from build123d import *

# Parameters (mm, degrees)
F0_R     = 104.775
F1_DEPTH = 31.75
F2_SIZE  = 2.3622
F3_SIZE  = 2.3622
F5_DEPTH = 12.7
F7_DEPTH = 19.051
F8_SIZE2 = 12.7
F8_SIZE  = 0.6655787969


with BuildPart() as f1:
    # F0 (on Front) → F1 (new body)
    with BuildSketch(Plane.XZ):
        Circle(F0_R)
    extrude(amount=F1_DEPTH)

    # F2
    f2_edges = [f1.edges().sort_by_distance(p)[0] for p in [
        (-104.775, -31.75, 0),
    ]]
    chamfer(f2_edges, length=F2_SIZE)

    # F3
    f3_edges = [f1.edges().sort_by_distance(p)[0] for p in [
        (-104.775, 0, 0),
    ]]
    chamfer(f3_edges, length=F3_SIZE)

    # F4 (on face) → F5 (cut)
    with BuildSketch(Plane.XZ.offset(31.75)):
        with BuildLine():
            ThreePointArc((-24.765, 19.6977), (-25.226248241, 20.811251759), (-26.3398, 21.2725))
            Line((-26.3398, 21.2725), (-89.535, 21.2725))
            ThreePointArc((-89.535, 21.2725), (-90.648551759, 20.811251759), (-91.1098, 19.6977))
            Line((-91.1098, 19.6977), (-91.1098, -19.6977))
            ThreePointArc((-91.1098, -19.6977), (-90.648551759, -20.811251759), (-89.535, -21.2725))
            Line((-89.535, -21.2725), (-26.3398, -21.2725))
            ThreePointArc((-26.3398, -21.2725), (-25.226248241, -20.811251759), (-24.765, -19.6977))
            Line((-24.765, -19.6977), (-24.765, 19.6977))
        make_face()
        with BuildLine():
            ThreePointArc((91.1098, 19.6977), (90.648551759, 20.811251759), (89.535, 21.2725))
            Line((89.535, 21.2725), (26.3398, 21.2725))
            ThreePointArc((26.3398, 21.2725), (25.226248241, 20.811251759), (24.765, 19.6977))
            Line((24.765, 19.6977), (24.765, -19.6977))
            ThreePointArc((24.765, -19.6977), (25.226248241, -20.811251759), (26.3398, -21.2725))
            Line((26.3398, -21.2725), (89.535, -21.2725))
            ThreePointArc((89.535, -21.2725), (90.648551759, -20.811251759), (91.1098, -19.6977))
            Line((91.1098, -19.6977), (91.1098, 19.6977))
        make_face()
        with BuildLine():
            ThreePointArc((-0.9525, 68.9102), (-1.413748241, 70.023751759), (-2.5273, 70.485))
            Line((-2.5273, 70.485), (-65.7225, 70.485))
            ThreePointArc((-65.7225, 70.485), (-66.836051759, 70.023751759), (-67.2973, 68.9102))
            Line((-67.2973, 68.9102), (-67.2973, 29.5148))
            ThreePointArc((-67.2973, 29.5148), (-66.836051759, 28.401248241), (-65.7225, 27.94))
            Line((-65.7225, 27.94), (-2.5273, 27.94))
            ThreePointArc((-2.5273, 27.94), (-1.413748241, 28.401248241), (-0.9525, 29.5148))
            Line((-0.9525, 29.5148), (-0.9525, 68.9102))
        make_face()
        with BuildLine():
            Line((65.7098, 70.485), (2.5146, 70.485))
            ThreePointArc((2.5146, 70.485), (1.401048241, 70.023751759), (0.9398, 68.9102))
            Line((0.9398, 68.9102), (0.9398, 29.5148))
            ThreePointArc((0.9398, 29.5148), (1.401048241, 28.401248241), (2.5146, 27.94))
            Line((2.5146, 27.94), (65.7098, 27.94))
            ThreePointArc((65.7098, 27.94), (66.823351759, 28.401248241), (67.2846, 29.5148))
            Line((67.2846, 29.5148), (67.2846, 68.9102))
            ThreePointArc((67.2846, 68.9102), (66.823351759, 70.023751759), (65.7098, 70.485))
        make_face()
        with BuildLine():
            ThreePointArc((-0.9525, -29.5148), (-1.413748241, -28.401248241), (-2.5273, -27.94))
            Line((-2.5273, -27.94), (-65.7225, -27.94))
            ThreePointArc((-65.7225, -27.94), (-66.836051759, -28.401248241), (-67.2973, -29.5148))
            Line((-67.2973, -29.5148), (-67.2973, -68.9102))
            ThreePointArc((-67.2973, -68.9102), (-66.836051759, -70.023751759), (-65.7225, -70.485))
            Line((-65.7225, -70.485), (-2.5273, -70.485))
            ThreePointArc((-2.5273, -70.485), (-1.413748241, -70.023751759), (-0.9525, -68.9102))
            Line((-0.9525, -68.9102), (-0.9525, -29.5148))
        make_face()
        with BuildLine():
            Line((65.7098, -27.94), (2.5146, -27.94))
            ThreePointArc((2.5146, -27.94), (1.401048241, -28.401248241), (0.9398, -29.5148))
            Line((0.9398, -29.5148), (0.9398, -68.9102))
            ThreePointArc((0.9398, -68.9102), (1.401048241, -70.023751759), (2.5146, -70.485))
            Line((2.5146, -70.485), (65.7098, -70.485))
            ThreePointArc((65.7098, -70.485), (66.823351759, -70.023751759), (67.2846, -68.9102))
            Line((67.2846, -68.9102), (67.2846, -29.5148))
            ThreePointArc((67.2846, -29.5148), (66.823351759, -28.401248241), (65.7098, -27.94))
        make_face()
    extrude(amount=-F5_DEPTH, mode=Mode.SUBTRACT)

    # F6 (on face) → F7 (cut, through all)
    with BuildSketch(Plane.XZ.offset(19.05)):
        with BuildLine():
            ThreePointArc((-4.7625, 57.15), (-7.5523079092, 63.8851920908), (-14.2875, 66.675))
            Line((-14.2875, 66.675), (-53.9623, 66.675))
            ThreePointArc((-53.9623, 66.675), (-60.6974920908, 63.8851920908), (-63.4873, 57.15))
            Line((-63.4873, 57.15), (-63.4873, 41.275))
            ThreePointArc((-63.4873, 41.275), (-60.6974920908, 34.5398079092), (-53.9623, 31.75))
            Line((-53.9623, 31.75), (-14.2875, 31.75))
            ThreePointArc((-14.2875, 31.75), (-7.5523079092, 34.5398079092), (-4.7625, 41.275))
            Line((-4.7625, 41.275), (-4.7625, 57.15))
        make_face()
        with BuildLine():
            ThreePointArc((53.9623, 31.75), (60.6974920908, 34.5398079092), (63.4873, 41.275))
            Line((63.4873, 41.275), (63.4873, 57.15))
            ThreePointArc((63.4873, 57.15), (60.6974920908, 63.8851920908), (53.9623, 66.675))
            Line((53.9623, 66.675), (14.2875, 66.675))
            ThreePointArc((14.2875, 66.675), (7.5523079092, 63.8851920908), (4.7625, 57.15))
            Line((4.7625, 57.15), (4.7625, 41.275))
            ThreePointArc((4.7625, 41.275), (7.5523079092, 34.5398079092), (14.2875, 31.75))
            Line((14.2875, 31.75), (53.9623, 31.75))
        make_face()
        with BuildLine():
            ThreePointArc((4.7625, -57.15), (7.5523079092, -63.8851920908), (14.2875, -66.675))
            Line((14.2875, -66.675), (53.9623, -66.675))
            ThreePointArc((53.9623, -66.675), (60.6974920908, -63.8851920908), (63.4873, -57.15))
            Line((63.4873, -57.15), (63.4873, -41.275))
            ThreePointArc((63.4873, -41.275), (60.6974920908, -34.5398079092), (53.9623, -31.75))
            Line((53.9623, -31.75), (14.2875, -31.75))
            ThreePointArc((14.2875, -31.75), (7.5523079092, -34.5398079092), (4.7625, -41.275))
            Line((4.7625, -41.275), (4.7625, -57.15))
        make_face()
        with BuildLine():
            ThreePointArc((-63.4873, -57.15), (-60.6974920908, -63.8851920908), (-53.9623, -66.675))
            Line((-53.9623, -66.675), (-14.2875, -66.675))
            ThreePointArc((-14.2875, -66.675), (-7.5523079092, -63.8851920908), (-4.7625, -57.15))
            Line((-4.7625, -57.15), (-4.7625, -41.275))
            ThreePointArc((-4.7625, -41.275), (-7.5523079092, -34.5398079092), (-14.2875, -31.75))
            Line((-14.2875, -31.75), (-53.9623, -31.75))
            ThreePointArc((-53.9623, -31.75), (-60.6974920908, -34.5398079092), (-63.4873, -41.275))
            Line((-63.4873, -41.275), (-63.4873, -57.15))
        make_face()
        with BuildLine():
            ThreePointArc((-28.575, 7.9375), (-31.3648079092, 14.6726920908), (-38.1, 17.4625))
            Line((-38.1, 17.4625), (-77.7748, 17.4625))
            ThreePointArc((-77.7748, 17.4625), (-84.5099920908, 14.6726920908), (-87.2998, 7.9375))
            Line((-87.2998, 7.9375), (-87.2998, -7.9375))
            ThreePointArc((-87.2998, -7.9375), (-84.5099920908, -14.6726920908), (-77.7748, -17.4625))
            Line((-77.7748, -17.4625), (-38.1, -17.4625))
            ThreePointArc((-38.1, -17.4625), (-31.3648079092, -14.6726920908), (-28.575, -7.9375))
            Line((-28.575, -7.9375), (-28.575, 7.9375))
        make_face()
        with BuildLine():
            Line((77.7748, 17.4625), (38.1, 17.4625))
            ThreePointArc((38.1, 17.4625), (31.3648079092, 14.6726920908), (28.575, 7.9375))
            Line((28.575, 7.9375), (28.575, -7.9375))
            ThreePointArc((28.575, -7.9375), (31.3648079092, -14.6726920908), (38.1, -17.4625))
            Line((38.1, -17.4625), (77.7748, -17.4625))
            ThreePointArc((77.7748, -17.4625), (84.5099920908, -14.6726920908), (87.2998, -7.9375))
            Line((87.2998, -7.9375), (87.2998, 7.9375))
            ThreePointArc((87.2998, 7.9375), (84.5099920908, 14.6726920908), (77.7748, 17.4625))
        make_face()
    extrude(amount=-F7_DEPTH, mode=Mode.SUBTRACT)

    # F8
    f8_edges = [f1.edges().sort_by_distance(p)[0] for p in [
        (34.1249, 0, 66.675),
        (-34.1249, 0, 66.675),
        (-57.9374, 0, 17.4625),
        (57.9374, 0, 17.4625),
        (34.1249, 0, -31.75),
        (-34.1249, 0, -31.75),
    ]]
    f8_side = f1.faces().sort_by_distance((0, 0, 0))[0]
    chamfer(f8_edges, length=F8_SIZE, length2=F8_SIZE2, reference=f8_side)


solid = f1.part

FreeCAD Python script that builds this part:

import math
import FreeCAD as App
import Part
import Sketcher
from FreeCAD import Vector
Q = App.Units.Quantity


def edges_at(feature, points):
    """Names of the edges that pass closest to the given points."""
    edges = feature.Shape.Edges
    near = lambda p: min(range(len(edges)), key=lambda i: edges[i].distToShape(Part.Vertex(*p))[0])
    return sorted({f"Edge{near(p) + 1}" for p in points})

doc = App.newDocument("Part")
body = doc.addObject("PartDesign::Body", "Body")

sketch1 = body.newObject("Sketcher::SketchObject", "Sketch")
sketch1.AttachmentSupport = (doc.getObject("XZ_Plane"), [""])
sketch1.MapMode = "FlatFace"
sketch1.addGeometry(Part.Circle(Vector(0, 0, 0), Vector(0, 0, 1), 105), False)
sketch1.addConstraint([
    Sketcher.Constraint("Coincident", 0, 3, -1, 1),
    Sketcher.Constraint("Diameter", 0, Q("8.25 in")),
])
pad1 = body.newObject("PartDesign::Pad", "Pad")
pad1.Profile = sketch1
pad1.Length = Q("1.25 in")
doc.recompute()

chamfer = body.newObject("PartDesign::Chamfer", "Chamfer")
chamfer.Base = (pad1, edges_at(pad1, [(-104.775, -31.75, 0)]))
chamfer.Size = Q("0.093 in")
doc.recompute()

chamfer2 = body.newObject("PartDesign::Chamfer", "Chamfer001")
chamfer2.Base = (chamfer, edges_at(chamfer, [(-104.775, 0, 0)]))
chamfer2.Size = Q("0.093 in")

sketch2 = body.newObject("Sketcher::SketchObject", "Sketch001")
sketch2.AttachmentSupport = (doc.getObject("XZ_Plane"), [""])
sketch2.MapMode = "FlatFace"
sketch2.AttachmentOffset = App.Placement(Vector(0, 0, 1.25 * 25.4), App.Rotation())
sketch2.addGeometry([
    Part.ArcOfCircle(Part.Circle(Vector(-26.3, 19.7, 0), Vector(0, 0, 1), 1.6), math.radians(0), math.radians(90)),
    Part.LineSegment(Vector(-26.3, 21.3, 0), Vector(-89.5, 21.3, 0)),
    Part.ArcOfCircle(Part.Circle(Vector(-89.5, 19.7, 0), Vector(0, 0, 1), 1.6), math.radians(90), math.radians(180)),
    Part.LineSegment(Vector(-91.1, 19.7, 0), Vector(-91.1, -19.7, 0)),
    Part.ArcOfCircle(Part.Circle(Vector(-89.5, -19.7, 0), Vector(0, 0, 1), 1.6), math.radians(180), math.radians(270)),
    Part.LineSegment(Vector(-89.5, -21.3, 0), Vector(-26.3, -21.3, 0)),
    Part.ArcOfCircle(Part.Circle(Vector(-26.3, -19.7, 0), Vector(0, 0, 1), 1.6), math.radians(-90), math.radians(0)),
    Part.LineSegment(Vector(-24.8, -19.7, 0), Vector(-24.8, 19.7, 0)),
    Part.ArcOfCircle(Part.Circle(Vector(89.5, 19.7, 0), Vector(0, 0, 1), 1.6), math.radians(0), math.radians(90)),
    Part.LineSegment(Vector(89.5, 21.3, 0), Vector(26.3, 21.3, 0)),
    Part.ArcOfCircle(Part.Circle(Vector(26.3, 19.7, 0), Vector(0, 0, 1), 1.6), math.radians(90), math.radians(180)),
    Part.LineSegment(Vector(24.8, 19.7, 0), Vector(24.8, -19.7, 0)),
    Part.ArcOfCircle(Part.Circle(Vector(26.3, -19.7, 0), Vector(0, 0, 1), 1.6), math.radians(180), math.radians(270)),
    Part.LineSegment(Vector(26.3, -21.3, 0), Vector(89.5, -21.3, 0)),
    Part.ArcOfCircle(Part.Circle(Vector(89.5, -19.7, 0), Vector(0, 0, 1), 1.6), math.radians(-90), math.radians(0)),
    Part.LineSegment(Vector(91.1, -19.7, 0), Vector(91.1, 19.7, 0)),
    Part.ArcOfCircle(Part.Circle(Vector(-2.5, 68.9, 0), Vector(0, 0, 1), 1.6), math.radians(0), math.radians(90)),
    Part.LineSegment(Vector(-2.5, 70.5, 0), Vector(-65.7, 70.5, 0)),
    Part.ArcOfCircle(Part.Circle(Vector(-65.7, 68.9, 0), Vector(0, 0, 1), 1.6), math.radians(90), math.radians(180)),
    Part.LineSegment(Vector(-67.3, 68.9, 0), Vector(-67.3, 29.5, 0)),
    Part.ArcOfCircle(Part.Circle(Vector(-65.7, 29.5, 0), Vector(0, 0, 1), 1.6), math.radians(180), math.radians(270)),
    Part.LineSegment(Vector(-65.7, 27.9, 0), Vector(-2.5, 27.9, 0)),
    Part.ArcOfCircle(Part.Circle(Vector(-2.5, 29.5, 0), Vector(0, 0, 1), 1.6), math.radians(-90), math.radians(0)),
    Part.LineSegment(Vector(-1, 29.5, 0), Vector(-1, 68.9, 0)),
    Part.LineSegment(Vector(65.7, 70.5, 0), Vector(2.5, 70.5, 0)),
    Part.ArcOfCircle(Part.Circle(Vector(2.5, 68.9, 0), Vector(0, 0, 1), 1.6), math.radians(90), math.radians(180)),
    Part.LineSegment(Vector(0.9, 68.9, 0), Vector(0.9, 29.5, 0)),
    Part.ArcOfCircle(Part.Circle(Vector(2.5, 29.5, 0), Vector(0, 0, 1), 1.6), math.radians(180), math.radians(270)),
    Part.LineSegment(Vector(2.5, 27.9, 0), Vector(65.7, 27.9, 0)),
    Part.ArcOfCircle(Part.Circle(Vector(65.7, 29.5, 0), Vector(0, 0, 1), 1.6), math.radians(-90), math.radians(0)),
    Part.LineSegment(Vector(67.3, 29.5, 0), Vector(67.3, 68.9, 0)),
    Part.ArcOfCircle(Part.Circle(Vector(65.7, 68.9, 0), Vector(0, 0, 1), 1.6), math.radians(0), math.radians(90)),
    Part.ArcOfCircle(Part.Circle(Vector(-2.5, -29.5, 0), Vector(0, 0, 1), 1.6), math.radians(0), math.radians(90)),
    Part.LineSegment(Vector(-2.5, -27.9, 0), Vector(-65.7, -27.9, 0)),
    Part.ArcOfCircle(Part.Circle(Vector(-65.7, -29.5, 0), Vector(0, 0, 1), 1.6), math.radians(90), math.radians(180)),
    Part.LineSegment(Vector(-67.3, -29.5, 0), Vector(-67.3, -68.9, 0)),
    Part.ArcOfCircle(Part.Circle(Vector(-65.7, -68.9, 0), Vector(0, 0, 1), 1.6), math.radians(180), math.radians(270)),
    Part.LineSegment(Vector(-65.7, -70.5, 0), Vector(-2.5, -70.5, 0)),
    Part.ArcOfCircle(Part.Circle(Vector(-2.5, -68.9, 0), Vector(0, 0, 1), 1.6), math.radians(-90), math.radians(0)),
    Part.LineSegment(Vector(-1, -68.9, 0), Vector(-1, -29.5, 0)),
    Part.LineSegment(Vector(65.7, -27.9, 0), Vector(2.5, -27.9, 0)),
    Part.ArcOfCircle(Part.Circle(Vector(2.5, -29.5, 0), Vector(0, 0, 1), 1.6), math.radians(90), math.radians(180)),
    Part.LineSegment(Vector(0.9, -29.5, 0), Vector(0.9, -68.9, 0)),
    Part.ArcOfCircle(Part.Circle(Vector(2.5, -68.9, 0), Vector(0, 0, 1), 1.6), math.radians(180), math.radians(270)),
    Part.LineSegment(Vector(2.5, -70.5, 0), Vector(65.7, -70.5, 0)),
    Part.ArcOfCircle(Part.Circle(Vector(65.7, -68.9, 0), Vector(0, 0, 1), 1.6), math.radians(-90), math.radians(0)),
    Part.LineSegment(Vector(67.3, -68.9, 0), Vector(67.3, -29.5, 0)),
    Part.ArcOfCircle(Part.Circle(Vector(65.7, -29.5, 0), Vector(0, 0, 1), 1.6), math.radians(0), math.radians(90)),
], False)
sketch2.addConstraint([
    Sketcher.Constraint("Tangent", 0, 2, 1, 1),
    Sketcher.Constraint("Tangent", 1, 2, 2, 1),
    Sketcher.Constraint("Tangent", 2, 2, 3, 1),
    Sketcher.Constraint("Tangent", 3, 2, 4, 1),
    Sketcher.Constraint("Tangent", 4, 2, 5, 1),
    Sketcher.Constraint("Tangent", 5, 2, 6, 1),
    Sketcher.Constraint("Tangent", 6, 2, 7, 1),
    Sketcher.Constraint("Tangent", 7, 2, 0, 1),
    Sketcher.Constraint("Tangent", 8, 2, 9, 1),
    Sketcher.Constraint("Tangent", 9, 2, 10, 1),
    Sketcher.Constraint("Tangent", 10, 2, 11, 1),
    Sketcher.Constraint("Tangent", 11, 2, 12, 1),
    Sketcher.Constraint("Tangent", 12, 2, 13, 1),
    Sketcher.Constraint("Tangent", 13, 2, 14, 1),
    Sketcher.Constraint("Tangent", 14, 2, 15, 1),
    Sketcher.Constraint("Tangent", 15, 2, 8, 1),
    Sketcher.Constraint("Tangent", 16, 2, 17, 1),
    Sketcher.Constraint("Tangent", 17, 2, 18, 1),
    Sketcher.Constraint("Tangent", 18, 2, 19, 1),
    Sketcher.Constraint("Tangent", 19, 2, 20, 1),
    Sketcher.Constraint("Tangent", 20, 2, 21, 1),
    Sketcher.Constraint("Tangent", 21, 2, 22, 1),
    Sketcher.Constraint("Tangent", 22, 2, 23, 1),
    Sketcher.Constraint("Tangent", 23, 2, 16, 1),
    Sketcher.Constraint("Tangent", 24, 2, 25, 1),
    Sketcher.Constraint("Tangent", 25, 2, 26, 1),
    Sketcher.Constraint("Tangent", 26, 2, 27, 1),
    Sketcher.Constraint("Tangent", 27, 2, 28, 1),
    Sketcher.Constraint("Tangent", 28, 2, 29, 1),
    Sketcher.Constraint("Tangent", 29, 2, 30, 1),
    Sketcher.Constraint("Tangent", 30, 2, 31, 1),
    Sketcher.Constraint("Tangent", 31, 2, 24, 1),
    Sketcher.Constraint("Tangent", 32, 2, 33, 1),
    Sketcher.Constraint("Tangent", 33, 2, 34, 1),
    Sketcher.Constraint("Tangent", 34, 2, 35, 1),
    Sketcher.Constraint("Tangent", 35, 2, 36, 1),
    Sketcher.Constraint("Tangent", 36, 2, 37, 1),
    Sketcher.Constraint("Tangent", 37, 2, 38, 1),
    Sketcher.Constraint("Tangent", 38, 2, 39, 1),
    Sketcher.Constraint("Tangent", 39, 2, 32, 1),
    Sketcher.Constraint("Tangent", 40, 2, 41, 1),
    Sketcher.Constraint("Tangent", 41, 2, 42, 1),
    Sketcher.Constraint("Tangent", 42, 2, 43, 1),
    Sketcher.Constraint("Tangent", 43, 2, 44, 1),
    Sketcher.Constraint("Tangent", 44, 2, 45, 1),
    Sketcher.Constraint("Tangent", 45, 2, 46, 1),
    Sketcher.Constraint("Tangent", 46, 2, 47, 1),
    Sketcher.Constraint("Tangent", 47, 2, 40, 1),
    Sketcher.Constraint("Horizontal", 1),
    Sketcher.Constraint("Vertical", 3),
    Sketcher.Constraint("Horizontal", 5),
    Sketcher.Constraint("Vertical", 7),
    Sketcher.Constraint("Horizontal", 9),
    Sketcher.Constraint("Vertical", 11),
    Sketcher.Constraint("Horizontal", 13),
    Sketcher.Constraint("Vertical", 15),
    Sketcher.Constraint("Horizontal", 17),
    Sketcher.Constraint("Vertical", 19),
    Sketcher.Constraint("Horizontal", 21),
    Sketcher.Constraint("Vertical", 23),
    Sketcher.Constraint("Horizontal", 24),
    Sketcher.Constraint("Vertical", 26),
    Sketcher.Constraint("Horizontal", 28),
    Sketcher.Constraint("Vertical", 30),
    Sketcher.Constraint("Horizontal", 33),
    Sketcher.Constraint("Vertical", 35),
    Sketcher.Constraint("Horizontal", 37),
    Sketcher.Constraint("Vertical", 39),
    Sketcher.Constraint("Horizontal", 40),
    Sketcher.Constraint("Vertical", 42),
    Sketcher.Constraint("Horizontal", 44),
    Sketcher.Constraint("Vertical", 46),
    Sketcher.Constraint("Equal", 0, 2),
    Sketcher.Constraint("Equal", 2, 4),
    Sketcher.Constraint("Equal", 4, 6),
    Sketcher.Constraint("Equal", 6, 8),
    Sketcher.Constraint("Equal", 8, 10),
    Sketcher.Constraint("Equal", 10, 12),
    Sketcher.Constraint("Equal", 12, 14),
    Sketcher.Constraint("Equal", 14, 16),
    Sketcher.Constraint("Equal", 16, 18),
    Sketcher.Constraint("Equal", 18, 20),
    Sketcher.Constraint("Equal", 20, 22),
    Sketcher.Constraint("Equal", 22, 25),
    Sketcher.Constraint("Equal", 25, 27),
    Sketcher.Constraint("Equal", 27, 29),
    Sketcher.Constraint("Equal", 29, 31),
    Sketcher.Constraint("Equal", 31, 32),
    Sketcher.Constraint("Equal", 32, 34),
    Sketcher.Constraint("Equal", 34, 36),
    Sketcher.Constraint("Equal", 36, 38),
    Sketcher.Constraint("Equal", 38, 41),
    Sketcher.Constraint("Equal", 41, 43),
    Sketcher.Constraint("Equal", 43, 45),
    Sketcher.Constraint("Equal", 45, 47),
    Sketcher.Constraint("Symmetric", 4, 3, 8, 3, -1, 1),
    Sketcher.Constraint("Symmetric", 0, 3, 12, 3, -1, 1),
    Sketcher.Constraint("Symmetric", 22, 3, 32, 3, -1),
    Sketcher.Constraint("Symmetric", 18, 3, 36, 3, -1),
    Sketcher.Constraint("Symmetric", 27, 3, 41, 3, -1),
    Sketcher.Constraint("Symmetric", 31, 3, 45, 3, -1),
    Sketcher.Constraint("Horizontal", 2, 3, 8, 3),
    Sketcher.Constraint("Horizontal", 18, 3, 25, 3),
    Sketcher.Constraint("Horizontal", 22, 3, 27, 3),
    Sketcher.Constraint("Equal", 13, 17),
    Sketcher.Constraint("Equal", 21, 24),
    Sketcher.Constraint("Equal", 15, 19),
    Sketcher.Constraint("Radius", 0, Q("0.062 in")),
    Sketcher.Constraint("DistanceY", -1, 1, 20, 2, Q("1.1 in")),
    Sketcher.Constraint("DistanceX", 1, 2, 1, 1, Q("2.488 in")),
    Sketcher.Constraint("DistanceY", 3, 2, 3, 1, Q("1.551 in")),
    Sketcher.Constraint("DistanceX", 0, 3, -1, 1, Q("1.037 in")),
    Sketcher.Constraint("DistanceX", -1, 1, 25, 3, Q("0.099 in")),
    Sketcher.Constraint("DistanceX", 16, 3, -1, 1, Q("0.0995 in")),
])
pocket1 = body.newObject("PartDesign::Pocket", "Pocket")
pocket1.Profile = sketch2
pocket1.Length = Q("0.5 in")

sketch3 = body.newObject("Sketcher::SketchObject", "Sketch002")
sketch3.AttachmentSupport = (doc.getObject("XZ_Plane"), [""])
sketch3.MapMode = "FlatFace"
sketch3.AttachmentOffset = App.Placement(Vector(0, 0, 0.75 * 25.4), App.Rotation())
sketch3.addGeometry([
    Part.ArcOfCircle(Part.Circle(Vector(-14, 57, 0), Vector(0, 0, 1), 10), math.radians(0), math.radians(90)),
    Part.LineSegment(Vector(-14, 67, 0), Vector(-54, 67, 0)),
    Part.ArcOfCircle(Part.Circle(Vector(-54, 57, 0), Vector(0, 0, 1), 10), math.radians(90), math.radians(180)),
    Part.LineSegment(Vector(-63, 57, 0), Vector(-63, 41, 0)),
    Part.ArcOfCircle(Part.Circle(Vector(-54, 41, 0), Vector(0, 0, 1), 10), math.radians(180), math.radians(270)),
    Part.LineSegment(Vector(-54, 32, 0), Vector(-14, 32, 0)),
    Part.ArcOfCircle(Part.Circle(Vector(-14, 41, 0), Vector(0, 0, 1), 10), math.radians(-90), math.radians(0)),
    Part.LineSegment(Vector(-5, 41, 0), Vector(-5, 57, 0)),
    Part.ArcOfCircle(Part.Circle(Vector(54, 41, 0), Vector(0, 0, 1), 10), math.radians(-90), math.radians(0)),
    Part.LineSegment(Vector(63, 41, 0), Vector(63, 57, 0)),
    Part.ArcOfCircle(Part.Circle(Vector(54, 57, 0), Vector(0, 0, 1), 10), math.radians(0), math.radians(90)),
    Part.LineSegment(Vector(54, 67, 0), Vector(14, 67, 0)),
    Part.ArcOfCircle(Part.Circle(Vector(14, 57, 0), Vector(0, 0, 1), 10), math.radians(90), math.radians(180)),
    Part.LineSegment(Vector(5, 57, 0), Vector(5, 41, 0)),
    Part.ArcOfCircle(Part.Circle(Vector(14, 41, 0), Vector(0, 0, 1), 10), math.radians(180), math.radians(270)),
    Part.LineSegment(Vector(14, 32, 0), Vector(54, 32, 0)),
    Part.ArcOfCircle(Part.Circle(Vector(14, -57, 0), Vector(0, 0, 1), 10), math.radians(180), math.radians(270)),
    Part.LineSegment(Vector(14, -67, 0), Vector(54, -67, 0)),
    Part.ArcOfCircle(Part.Circle(Vector(54, -57, 0), Vector(0, 0, 1), 10), math.radians(-90), math.radians(0)),
    Part.LineSegment(Vector(63, -57, 0), Vector(63, -41, 0)),
    Part.ArcOfCircle(Part.Circle(Vector(54, -41, 0), Vector(0, 0, 1), 10), math.radians(0), math.radians(90)),
    Part.LineSegment(Vector(54, -32, 0), Vector(14, -32, 0)),
    Part.ArcOfCircle(Part.Circle(Vector(14, -41, 0), Vector(0, 0, 1), 10), math.radians(90), math.radians(180)),
    Part.LineSegment(Vector(5, -41, 0), Vector(5, -57, 0)),
    Part.ArcOfCircle(Part.Circle(Vector(-54, -57, 0), Vector(0, 0, 1), 10), math.radians(180), math.radians(270)),
    Part.LineSegment(Vector(-54, -67, 0), Vector(-14, -67, 0)),
    Part.ArcOfCircle(Part.Circle(Vector(-14, -57, 0), Vector(0, 0, 1), 10), math.radians(-90), math.radians(0)),
    Part.LineSegment(Vector(-5, -57, 0), Vector(-5, -41, 0)),
    Part.ArcOfCircle(Part.Circle(Vector(-14, -41, 0), Vector(0, 0, 1), 10), math.radians(0), math.radians(90)),
    Part.LineSegment(Vector(-14, -32, 0), Vector(-54, -32, 0)),
    Part.ArcOfCircle(Part.Circle(Vector(-54, -41, 0), Vector(0, 0, 1), 10), math.radians(90), math.radians(180)),
    Part.LineSegment(Vector(-63, -41, 0), Vector(-63, -57, 0)),
    Part.ArcOfCircle(Part.Circle(Vector(-38, 8, 0), Vector(0, 0, 1), 10), math.radians(0), math.radians(90)),
    Part.LineSegment(Vector(-38, 17, 0), Vector(-78, 17, 0)),
    Part.ArcOfCircle(Part.Circle(Vector(-78, 8, 0), Vector(0, 0, 1), 10), math.radians(90), math.radians(180)),
    Part.LineSegment(Vector(-87, 8, 0), Vector(-87, -8, 0)),
    Part.ArcOfCircle(Part.Circle(Vector(-78, -8, 0), Vector(0, 0, 1), 10), math.radians(180), math.radians(270)),
    Part.LineSegment(Vector(-78, -17, 0), Vector(-38, -17, 0)),
    Part.ArcOfCircle(Part.Circle(Vector(-38, -8, 0), Vector(0, 0, 1), 10), math.radians(-90), math.radians(0)),
    Part.LineSegment(Vector(-29, -8, 0), Vector(-29, 8, 0)),
    Part.LineSegment(Vector(78, 17, 0), Vector(38, 17, 0)),
    Part.ArcOfCircle(Part.Circle(Vector(38, 8, 0), Vector(0, 0, 1), 10), math.radians(90), math.radians(180)),
    Part.LineSegment(Vector(29, 8, 0), Vector(29, -8, 0)),
    Part.ArcOfCircle(Part.Circle(Vector(38, -8, 0), Vector(0, 0, 1), 10), math.radians(180), math.radians(270)),
    Part.LineSegment(Vector(38, -17, 0), Vector(78, -17, 0)),
    Part.ArcOfCircle(Part.Circle(Vector(78, -8, 0), Vector(0, 0, 1), 10), math.radians(-90), math.radians(0)),
    Part.LineSegment(Vector(87, -8, 0), Vector(87, 8, 0)),
    Part.ArcOfCircle(Part.Circle(Vector(78, 8, 0), Vector(0, 0, 1), 10), math.radians(0), math.radians(90)),
], False)
sketch3.addConstraint([
    Sketcher.Constraint("Tangent", 0, 2, 1, 1),
    Sketcher.Constraint("Tangent", 1, 2, 2, 1),
    Sketcher.Constraint("Tangent", 2, 2, 3, 1),
    Sketcher.Constraint("Tangent", 3, 2, 4, 1),
    Sketcher.Constraint("Tangent", 4, 2, 5, 1),
    Sketcher.Constraint("Tangent", 5, 2, 6, 1),
    Sketcher.Constraint("Tangent", 6, 2, 7, 1),
    Sketcher.Constraint("Tangent", 7, 2, 0, 1),
    Sketcher.Constraint("Tangent", 8, 2, 9, 1),
    Sketcher.Constraint("Tangent", 9, 2, 10, 1),
    Sketcher.Constraint("Tangent", 10, 2, 11, 1),
    Sketcher.Constraint("Tangent", 11, 2, 12, 1),
    Sketcher.Constraint("Tangent", 12, 2, 13, 1),
    Sketcher.Constraint("Tangent", 13, 2, 14, 1),
    Sketcher.Constraint("Tangent", 14, 2, 15, 1),
    Sketcher.Constraint("Tangent", 15, 2, 8, 1),
    Sketcher.Constraint("Tangent", 16, 2, 17, 1),
    Sketcher.Constraint("Tangent", 17, 2, 18, 1),
    Sketcher.Constraint("Tangent", 18, 2, 19, 1),
    Sketcher.Constraint("Tangent", 19, 2, 20, 1),
    Sketcher.Constraint("Tangent", 20, 2, 21, 1),
    Sketcher.Constraint("Tangent", 21, 2, 22, 1),
    Sketcher.Constraint("Tangent", 22, 2, 23, 1),
    Sketcher.Constraint("Tangent", 23, 2, 16, 1),
    Sketcher.Constraint("Tangent", 24, 2, 25, 1),
    Sketcher.Constraint("Tangent", 25, 2, 26, 1),
    Sketcher.Constraint("Tangent", 26, 2, 27, 1),
    Sketcher.Constraint("Tangent", 27, 2, 28, 1),
    Sketcher.Constraint("Tangent", 28, 2, 29, 1),
    Sketcher.Constraint("Tangent", 29, 2, 30, 1),
    Sketcher.Constraint("Tangent", 30, 2, 31, 1),
    Sketcher.Constraint("Tangent", 31, 2, 24, 1),
    Sketcher.Constraint("Tangent", 32, 2, 33, 1),
    Sketcher.Constraint("Tangent", 33, 2, 34, 1),
    Sketcher.Constraint("Tangent", 34, 2, 35, 1),
    Sketcher.Constraint("Tangent", 35, 2, 36, 1),
    Sketcher.Constraint("Tangent", 36, 2, 37, 1),
    Sketcher.Constraint("Tangent", 37, 2, 38, 1),
    Sketcher.Constraint("Tangent", 38, 2, 39, 1),
    Sketcher.Constraint("Tangent", 39, 2, 32, 1),
    Sketcher.Constraint("Tangent", 40, 2, 41, 1),
    Sketcher.Constraint("Tangent", 41, 2, 42, 1),
    Sketcher.Constraint("Tangent", 42, 2, 43, 1),
    Sketcher.Constraint("Tangent", 43, 2, 44, 1),
    Sketcher.Constraint("Tangent", 44, 2, 45, 1),
    Sketcher.Constraint("Tangent", 45, 2, 46, 1),
    Sketcher.Constraint("Tangent", 46, 2, 47, 1),
    Sketcher.Constraint("Tangent", 47, 2, 40, 1),
    Sketcher.Constraint("Horizontal", 1),
    Sketcher.Constraint("Vertical", 3),
    Sketcher.Constraint("Horizontal", 5),
    Sketcher.Constraint("Vertical", 7),
    Sketcher.Constraint("Vertical", 9),
    Sketcher.Constraint("Horizontal", 11),
    Sketcher.Constraint("Vertical", 13),
    Sketcher.Constraint("Horizontal", 15),
    Sketcher.Constraint("Horizontal", 17),
    Sketcher.Constraint("Vertical", 19),
    Sketcher.Constraint("Horizontal", 21),
    Sketcher.Constraint("Vertical", 23),
    Sketcher.Constraint("Horizontal", 25),
    Sketcher.Constraint("Vertical", 27),
    Sketcher.Constraint("Horizontal", 29),
    Sketcher.Constraint("Vertical", 31),
    Sketcher.Constraint("Horizontal", 33),
    Sketcher.Constraint("Vertical", 35),
    Sketcher.Constraint("Horizontal", 37),
    Sketcher.Constraint("Vertical", 39),
    Sketcher.Constraint("Horizontal", 40),
    Sketcher.Constraint("Vertical", 42),
    Sketcher.Constraint("Horizontal", 44),
    Sketcher.Constraint("Vertical", 46),
    Sketcher.Constraint("Equal", 0, 2),
    Sketcher.Constraint("Equal", 2, 4),
    Sketcher.Constraint("Equal", 4, 6),
    Sketcher.Constraint("Equal", 6, 8),
    Sketcher.Constraint("Equal", 8, 10),
    Sketcher.Constraint("Equal", 10, 12),
    Sketcher.Constraint("Equal", 12, 14),
    Sketcher.Constraint("Equal", 14, 16),
    Sketcher.Constraint("Equal", 16, 18),
    Sketcher.Constraint("Equal", 18, 20),
    Sketcher.Constraint("Equal", 20, 22),
    Sketcher.Constraint("Equal", 22, 24),
    Sketcher.Constraint("Equal", 24, 26),
    Sketcher.Constraint("Equal", 26, 28),
    Sketcher.Constraint("Equal", 28, 30),
    Sketcher.Constraint("Equal", 30, 32),
    Sketcher.Constraint("Equal", 32, 34),
    Sketcher.Constraint("Equal", 34, 36),
    Sketcher.Constraint("Equal", 36, 38),
    Sketcher.Constraint("Equal", 38, 41),
    Sketcher.Constraint("Equal", 41, 43),
    Sketcher.Constraint("Equal", 43, 45),
    Sketcher.Constraint("Equal", 45, 47),
    Sketcher.Constraint("Symmetric", 0, 3, 16, 3, -1, 1),
    Sketcher.Constraint("Symmetric", 4, 3, 20, 3, -1, 1),
    Sketcher.Constraint("Symmetric", 10, 3, 24, 3, -1, 1),
    Sketcher.Constraint("Symmetric", 14, 3, 28, 3, -1, 1),
    Sketcher.Constraint("Symmetric", 38, 3, 41, 3, -1, 1),
    Sketcher.Constraint("Symmetric", 34, 3, 45, 3, -1, 1),
    Sketcher.Constraint("Symmetric", 4, 3, 8, 3, -2),
    Sketcher.Constraint("Symmetric", 0, 3, 12, 3, -2),
    Sketcher.Constraint("Horizontal", 34, 3, 41, 3),
    Sketcher.Constraint("Equal", 29, 33),
    Sketcher.Constraint("Equal", 31, 35),
    Sketcher.Constraint("Radius", 0, Q("0.375 in")),
    Sketcher.Constraint("DistanceX", 32, 3, -1, 1, Q("1.5 in")),
    Sketcher.Constraint("DistanceX", 1, 2, 1, 1, Q("1.562 in")),
    Sketcher.Constraint("DistanceY", 3, 2, 3, 1, Q("0.625 in")),
    Sketcher.Constraint("DistanceY", -1, 1, 0, 3, Q("2.25 in")),
    Sketcher.Constraint("DistanceX", 0, 3, -1, 1, Q("0.5625 in")),
])
pocket2 = body.newObject("PartDesign::Pocket", "Pocket001")
pocket2.Profile = sketch3
pocket2.Type = "ThroughAll"
doc.recompute()

chamfer3 = body.newObject("PartDesign::Chamfer", "Chamfer002")
chamfer3.Base = (pocket2, edges_at(pocket2, [
    (34.125, 0, 66.675),
    (-34.125, 0, 66.675),
    (-57.937, 0, 17.462),
    (57.937, 0, 17.462),
    (34.125, 0, -31.75),
    (-34.125, 0, -31.75),
]))
chamfer3.ChamferType = "Two distances"
chamfer3.Size = 0.665579
chamfer3.Size2 = Q("0.5 in")

doc.recompute()
